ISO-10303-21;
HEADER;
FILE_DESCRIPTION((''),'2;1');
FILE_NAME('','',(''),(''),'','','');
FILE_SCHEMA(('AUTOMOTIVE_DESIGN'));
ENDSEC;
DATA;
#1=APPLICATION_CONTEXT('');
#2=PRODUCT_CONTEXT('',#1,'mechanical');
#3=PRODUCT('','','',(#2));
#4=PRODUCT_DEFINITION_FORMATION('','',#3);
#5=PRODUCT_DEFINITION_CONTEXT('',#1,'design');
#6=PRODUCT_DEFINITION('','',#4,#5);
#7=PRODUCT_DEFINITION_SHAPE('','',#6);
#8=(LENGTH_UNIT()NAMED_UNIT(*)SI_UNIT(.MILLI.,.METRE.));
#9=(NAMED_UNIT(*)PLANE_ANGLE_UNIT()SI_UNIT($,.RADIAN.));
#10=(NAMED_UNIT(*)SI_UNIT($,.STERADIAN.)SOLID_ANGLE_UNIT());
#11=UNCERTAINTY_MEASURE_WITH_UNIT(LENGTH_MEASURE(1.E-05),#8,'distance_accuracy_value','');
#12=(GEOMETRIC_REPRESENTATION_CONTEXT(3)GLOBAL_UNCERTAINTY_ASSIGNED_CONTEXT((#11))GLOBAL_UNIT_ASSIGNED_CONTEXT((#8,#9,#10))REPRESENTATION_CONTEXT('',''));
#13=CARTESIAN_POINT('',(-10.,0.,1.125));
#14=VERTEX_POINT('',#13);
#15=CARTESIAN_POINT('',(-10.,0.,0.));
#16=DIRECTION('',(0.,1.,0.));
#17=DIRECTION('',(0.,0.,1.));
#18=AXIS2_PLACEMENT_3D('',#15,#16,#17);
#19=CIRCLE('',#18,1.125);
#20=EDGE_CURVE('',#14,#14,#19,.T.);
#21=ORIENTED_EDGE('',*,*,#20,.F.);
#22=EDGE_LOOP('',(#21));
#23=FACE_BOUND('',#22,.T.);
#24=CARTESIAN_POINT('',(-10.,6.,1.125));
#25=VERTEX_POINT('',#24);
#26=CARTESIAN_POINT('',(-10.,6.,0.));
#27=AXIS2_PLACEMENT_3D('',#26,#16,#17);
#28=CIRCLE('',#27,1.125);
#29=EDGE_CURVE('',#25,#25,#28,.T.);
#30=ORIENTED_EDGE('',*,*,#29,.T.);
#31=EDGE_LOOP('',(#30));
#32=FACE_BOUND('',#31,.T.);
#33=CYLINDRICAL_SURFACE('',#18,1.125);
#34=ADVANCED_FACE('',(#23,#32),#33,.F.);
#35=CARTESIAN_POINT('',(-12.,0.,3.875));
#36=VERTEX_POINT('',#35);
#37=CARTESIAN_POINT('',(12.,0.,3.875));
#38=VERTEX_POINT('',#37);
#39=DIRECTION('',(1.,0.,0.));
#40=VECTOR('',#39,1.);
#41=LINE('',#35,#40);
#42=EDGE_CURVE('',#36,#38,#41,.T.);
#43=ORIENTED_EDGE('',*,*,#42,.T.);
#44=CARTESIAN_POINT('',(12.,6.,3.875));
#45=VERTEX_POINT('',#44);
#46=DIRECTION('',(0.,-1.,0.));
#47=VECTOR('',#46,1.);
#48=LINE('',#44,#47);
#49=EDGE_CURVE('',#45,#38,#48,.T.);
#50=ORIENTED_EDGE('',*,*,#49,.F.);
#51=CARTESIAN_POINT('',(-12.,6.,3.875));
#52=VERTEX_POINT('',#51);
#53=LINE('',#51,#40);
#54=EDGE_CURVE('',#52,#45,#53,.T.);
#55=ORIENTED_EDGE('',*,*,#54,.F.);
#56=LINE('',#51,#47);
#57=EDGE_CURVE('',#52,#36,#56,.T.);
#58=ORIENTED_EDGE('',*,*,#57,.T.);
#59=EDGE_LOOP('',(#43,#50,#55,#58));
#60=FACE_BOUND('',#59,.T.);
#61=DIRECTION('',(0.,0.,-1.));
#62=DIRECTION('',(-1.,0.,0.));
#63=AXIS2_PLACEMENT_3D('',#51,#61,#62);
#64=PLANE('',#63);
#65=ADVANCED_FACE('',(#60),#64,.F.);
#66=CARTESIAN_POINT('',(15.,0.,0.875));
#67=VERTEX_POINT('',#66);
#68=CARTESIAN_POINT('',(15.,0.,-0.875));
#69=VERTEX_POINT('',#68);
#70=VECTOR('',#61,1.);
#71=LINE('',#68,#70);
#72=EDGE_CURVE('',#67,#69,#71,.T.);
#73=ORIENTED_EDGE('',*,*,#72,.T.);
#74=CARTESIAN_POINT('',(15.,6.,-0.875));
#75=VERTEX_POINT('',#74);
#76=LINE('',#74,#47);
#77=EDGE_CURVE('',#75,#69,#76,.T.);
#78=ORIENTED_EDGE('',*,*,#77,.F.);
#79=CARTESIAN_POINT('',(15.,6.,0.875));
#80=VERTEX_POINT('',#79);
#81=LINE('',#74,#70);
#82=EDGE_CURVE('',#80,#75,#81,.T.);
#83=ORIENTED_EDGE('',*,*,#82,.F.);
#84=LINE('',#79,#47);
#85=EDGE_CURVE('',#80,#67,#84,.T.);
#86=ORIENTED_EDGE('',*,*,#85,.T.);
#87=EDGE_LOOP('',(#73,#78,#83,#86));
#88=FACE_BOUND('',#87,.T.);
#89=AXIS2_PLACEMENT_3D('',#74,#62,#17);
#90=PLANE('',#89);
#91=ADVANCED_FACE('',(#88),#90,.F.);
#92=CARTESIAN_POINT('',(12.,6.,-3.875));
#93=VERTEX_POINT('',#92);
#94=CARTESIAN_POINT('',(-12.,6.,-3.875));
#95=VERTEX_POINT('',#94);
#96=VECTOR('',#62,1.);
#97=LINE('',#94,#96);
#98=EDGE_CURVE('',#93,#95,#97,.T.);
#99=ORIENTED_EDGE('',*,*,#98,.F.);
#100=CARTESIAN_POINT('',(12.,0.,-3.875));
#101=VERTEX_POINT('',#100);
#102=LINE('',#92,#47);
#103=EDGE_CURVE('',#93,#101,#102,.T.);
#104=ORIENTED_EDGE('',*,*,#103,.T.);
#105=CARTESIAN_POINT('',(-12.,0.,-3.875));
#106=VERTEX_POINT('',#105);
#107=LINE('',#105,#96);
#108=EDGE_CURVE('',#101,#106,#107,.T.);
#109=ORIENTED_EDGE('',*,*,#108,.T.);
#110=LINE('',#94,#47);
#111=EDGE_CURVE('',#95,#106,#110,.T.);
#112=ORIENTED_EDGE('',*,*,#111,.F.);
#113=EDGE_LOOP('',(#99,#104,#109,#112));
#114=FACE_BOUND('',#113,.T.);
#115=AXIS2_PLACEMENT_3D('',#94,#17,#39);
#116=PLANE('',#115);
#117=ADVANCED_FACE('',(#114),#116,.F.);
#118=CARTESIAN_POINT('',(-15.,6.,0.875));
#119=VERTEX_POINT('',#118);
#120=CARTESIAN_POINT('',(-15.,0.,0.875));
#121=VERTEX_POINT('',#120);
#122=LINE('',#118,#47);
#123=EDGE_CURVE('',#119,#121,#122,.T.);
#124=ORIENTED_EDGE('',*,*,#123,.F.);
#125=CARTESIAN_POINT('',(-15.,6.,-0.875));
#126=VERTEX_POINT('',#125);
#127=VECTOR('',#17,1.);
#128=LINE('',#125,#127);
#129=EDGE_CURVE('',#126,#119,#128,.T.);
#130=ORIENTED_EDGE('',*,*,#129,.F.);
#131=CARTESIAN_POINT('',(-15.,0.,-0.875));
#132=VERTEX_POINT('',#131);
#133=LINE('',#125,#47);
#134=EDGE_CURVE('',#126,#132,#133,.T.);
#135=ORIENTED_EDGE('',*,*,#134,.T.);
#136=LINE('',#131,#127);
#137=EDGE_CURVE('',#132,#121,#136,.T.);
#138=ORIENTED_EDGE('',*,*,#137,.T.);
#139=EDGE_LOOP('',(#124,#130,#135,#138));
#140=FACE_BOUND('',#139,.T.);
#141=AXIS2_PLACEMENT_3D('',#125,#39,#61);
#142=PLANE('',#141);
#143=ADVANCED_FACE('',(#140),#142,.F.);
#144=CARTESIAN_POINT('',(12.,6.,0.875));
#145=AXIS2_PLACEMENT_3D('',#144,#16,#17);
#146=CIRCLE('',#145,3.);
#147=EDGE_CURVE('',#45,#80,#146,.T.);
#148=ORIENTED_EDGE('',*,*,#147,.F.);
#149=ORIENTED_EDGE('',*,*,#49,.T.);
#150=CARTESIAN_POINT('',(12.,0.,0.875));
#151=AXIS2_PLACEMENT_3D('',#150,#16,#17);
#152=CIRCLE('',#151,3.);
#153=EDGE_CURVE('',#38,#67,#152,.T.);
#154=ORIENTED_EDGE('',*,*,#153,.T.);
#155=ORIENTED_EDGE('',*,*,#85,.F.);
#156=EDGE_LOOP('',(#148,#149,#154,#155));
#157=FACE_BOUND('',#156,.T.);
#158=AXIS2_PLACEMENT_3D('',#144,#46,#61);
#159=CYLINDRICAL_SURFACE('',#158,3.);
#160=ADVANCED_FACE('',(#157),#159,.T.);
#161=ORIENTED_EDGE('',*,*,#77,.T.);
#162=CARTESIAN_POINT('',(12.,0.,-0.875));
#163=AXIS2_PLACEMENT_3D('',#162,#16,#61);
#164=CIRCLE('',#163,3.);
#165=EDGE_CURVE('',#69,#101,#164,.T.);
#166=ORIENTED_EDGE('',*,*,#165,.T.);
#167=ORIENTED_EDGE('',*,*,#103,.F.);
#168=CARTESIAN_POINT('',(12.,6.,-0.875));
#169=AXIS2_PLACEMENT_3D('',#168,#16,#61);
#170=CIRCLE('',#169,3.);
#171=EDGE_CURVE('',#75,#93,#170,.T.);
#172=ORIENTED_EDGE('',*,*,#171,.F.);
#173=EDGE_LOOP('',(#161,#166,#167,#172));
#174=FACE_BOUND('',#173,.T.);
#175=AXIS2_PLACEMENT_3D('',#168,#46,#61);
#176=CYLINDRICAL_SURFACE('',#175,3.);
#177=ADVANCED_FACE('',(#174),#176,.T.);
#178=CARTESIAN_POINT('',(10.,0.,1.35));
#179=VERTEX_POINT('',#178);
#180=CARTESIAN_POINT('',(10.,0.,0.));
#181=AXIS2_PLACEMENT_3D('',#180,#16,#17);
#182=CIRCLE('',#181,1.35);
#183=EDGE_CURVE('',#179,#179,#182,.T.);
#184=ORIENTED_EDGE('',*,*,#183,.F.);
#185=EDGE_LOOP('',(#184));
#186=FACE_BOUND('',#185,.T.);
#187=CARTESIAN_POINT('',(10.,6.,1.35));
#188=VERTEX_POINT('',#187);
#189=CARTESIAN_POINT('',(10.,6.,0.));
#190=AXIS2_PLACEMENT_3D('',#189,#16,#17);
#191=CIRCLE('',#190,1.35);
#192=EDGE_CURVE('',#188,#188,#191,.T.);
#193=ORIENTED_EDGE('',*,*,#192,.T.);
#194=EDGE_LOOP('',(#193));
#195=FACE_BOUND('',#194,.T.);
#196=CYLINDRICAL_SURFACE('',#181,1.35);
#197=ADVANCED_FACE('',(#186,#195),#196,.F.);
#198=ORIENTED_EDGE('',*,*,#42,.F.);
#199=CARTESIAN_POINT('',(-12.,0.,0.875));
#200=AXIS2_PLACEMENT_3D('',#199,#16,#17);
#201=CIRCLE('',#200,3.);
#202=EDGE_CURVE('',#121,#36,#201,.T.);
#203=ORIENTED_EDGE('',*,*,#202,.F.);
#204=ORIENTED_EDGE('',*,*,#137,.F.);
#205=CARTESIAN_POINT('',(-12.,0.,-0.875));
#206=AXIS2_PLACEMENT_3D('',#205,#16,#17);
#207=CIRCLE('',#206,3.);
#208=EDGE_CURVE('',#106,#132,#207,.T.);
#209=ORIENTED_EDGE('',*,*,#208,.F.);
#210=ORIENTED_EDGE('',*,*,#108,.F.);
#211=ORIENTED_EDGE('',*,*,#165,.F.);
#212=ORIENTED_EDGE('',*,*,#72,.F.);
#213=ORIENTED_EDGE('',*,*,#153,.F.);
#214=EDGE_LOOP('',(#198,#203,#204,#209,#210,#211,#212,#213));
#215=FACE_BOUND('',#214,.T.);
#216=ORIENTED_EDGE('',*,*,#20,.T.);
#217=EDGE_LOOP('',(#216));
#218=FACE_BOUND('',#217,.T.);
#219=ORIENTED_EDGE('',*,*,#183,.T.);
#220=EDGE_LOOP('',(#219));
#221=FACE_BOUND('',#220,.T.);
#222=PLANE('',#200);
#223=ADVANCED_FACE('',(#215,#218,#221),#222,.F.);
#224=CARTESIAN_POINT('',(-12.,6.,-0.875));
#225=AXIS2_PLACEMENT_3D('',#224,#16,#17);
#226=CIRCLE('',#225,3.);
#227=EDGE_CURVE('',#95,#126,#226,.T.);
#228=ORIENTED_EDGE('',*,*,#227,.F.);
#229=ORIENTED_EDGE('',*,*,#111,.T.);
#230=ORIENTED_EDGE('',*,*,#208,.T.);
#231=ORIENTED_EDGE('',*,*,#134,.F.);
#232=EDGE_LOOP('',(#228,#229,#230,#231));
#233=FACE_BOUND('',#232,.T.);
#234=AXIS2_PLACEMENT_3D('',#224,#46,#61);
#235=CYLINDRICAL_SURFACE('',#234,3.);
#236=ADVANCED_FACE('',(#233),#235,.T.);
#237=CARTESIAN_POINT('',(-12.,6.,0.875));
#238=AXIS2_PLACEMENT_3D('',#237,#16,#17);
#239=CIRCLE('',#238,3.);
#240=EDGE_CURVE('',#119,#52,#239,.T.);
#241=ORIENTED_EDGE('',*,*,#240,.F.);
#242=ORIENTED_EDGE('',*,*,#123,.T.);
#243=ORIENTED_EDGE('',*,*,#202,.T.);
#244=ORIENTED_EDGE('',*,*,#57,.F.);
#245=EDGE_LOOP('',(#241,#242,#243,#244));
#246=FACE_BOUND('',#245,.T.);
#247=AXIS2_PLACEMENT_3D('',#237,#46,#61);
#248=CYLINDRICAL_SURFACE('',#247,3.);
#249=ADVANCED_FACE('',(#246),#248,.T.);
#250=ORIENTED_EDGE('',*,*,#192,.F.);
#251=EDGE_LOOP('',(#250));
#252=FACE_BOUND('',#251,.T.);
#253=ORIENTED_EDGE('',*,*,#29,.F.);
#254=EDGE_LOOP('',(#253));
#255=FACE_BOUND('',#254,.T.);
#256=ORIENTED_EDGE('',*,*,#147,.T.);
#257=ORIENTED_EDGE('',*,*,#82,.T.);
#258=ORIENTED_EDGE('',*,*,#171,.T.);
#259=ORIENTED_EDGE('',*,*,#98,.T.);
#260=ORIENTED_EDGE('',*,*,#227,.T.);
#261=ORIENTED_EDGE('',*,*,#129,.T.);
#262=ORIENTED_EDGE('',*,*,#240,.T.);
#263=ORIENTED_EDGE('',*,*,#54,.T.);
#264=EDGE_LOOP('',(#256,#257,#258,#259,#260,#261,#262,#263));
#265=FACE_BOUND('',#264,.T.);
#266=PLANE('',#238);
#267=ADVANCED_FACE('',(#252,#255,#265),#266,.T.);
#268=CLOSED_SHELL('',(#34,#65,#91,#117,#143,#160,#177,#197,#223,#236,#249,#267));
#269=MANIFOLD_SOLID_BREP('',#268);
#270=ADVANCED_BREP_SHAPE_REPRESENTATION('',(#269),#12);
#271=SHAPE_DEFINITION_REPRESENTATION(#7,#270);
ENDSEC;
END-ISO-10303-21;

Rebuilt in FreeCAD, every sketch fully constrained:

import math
import FreeCAD as App
import Part
import Sketcher
Q = App.Units.Quantity

doc = App.newDocument("Part")
body = doc.addObject("PartDesign::Body", "Body")

# Sketch on XZ plane
sketch1 = body.newObject("Sketcher::SketchObject", "Sketch")
sketch1.AttachmentSupport = (doc.getObject("XZ_Plane"), [""])
sketch1.MapMode = "FlatFace"
sketch1.addGeometry([
    Part.LineSegment(App.Vector(12, -3.9, 0), App.Vector(-12, -3.9, 0)),  # 0
    Part.ArcOfCircle(Part.Circle(App.Vector(-12, -0.9, 0), App.Vector(0, 0, 1), 3), math.radians(180), math.radians(270)),  # 1
    Part.LineSegment(App.Vector(-15, -0.9, 0), App.Vector(-15, 0.9, 0)),  # 2
    Part.ArcOfCircle(Part.Circle(App.Vector(-12, 0.9, 0), App.Vector(0, 0, 1), 3), math.radians(90), math.radians(180)),  # 3
    Part.LineSegment(App.Vector(-12, 3.9, 0), App.Vector(12, 3.9, 0)),  # 4
    Part.ArcOfCircle(Part.Circle(App.Vector(12, 0.9, 0), App.Vector(0, 0, 1), 3), math.radians(0), math.radians(90)),  # 5
    Part.LineSegment(App.Vector(15, 0.9, 0), App.Vector(15, -0.9, 0)),  # 6
    Part.ArcOfCircle(Part.Circle(App.Vector(12, -0.9, 0), App.Vector(0, 0, 1), 3), math.radians(-90), math.radians(0)),  # 7
], False)
sketch1.addConstraint([
    Sketcher.Constraint("Tangent", 0, 2, 1, 2),
    Sketcher.Constraint("Tangent", 1, 1, 2, 1),
    Sketcher.Constraint("Tangent", 2, 2, 3, 2),
    Sketcher.Constraint("Tangent", 3, 1, 4, 1),
    Sketcher.Constraint("Tangent", 4, 2, 5, 2),
    Sketcher.Constraint("Tangent", 5, 1, 6, 1),
    Sketcher.Constraint("Tangent", 6, 2, 7, 2),
    Sketcher.Constraint("Tangent", 7, 1, 0, 1),
    Sketcher.Constraint("Horizontal", 0),
    Sketcher.Constraint("Vertical", 2),
    Sketcher.Constraint("Horizontal", 4),
    Sketcher.Constraint("Vertical", 6),
    Sketcher.Constraint("Equal", 1, 3),
    Sketcher.Constraint("Equal", 3, 5),
    Sketcher.Constraint("Equal", 5, 7),
    Sketcher.Constraint("Symmetric", 1, 3, 5, 3, -1, 1),
    Sketcher.Constraint("Radius", 1, Q("3 mm")),
    Sketcher.Constraint("DistanceX", 0, 2, 0, 1, Q("24 mm")),
    Sketcher.Constraint("DistanceY", 2, 1, 2, 2, Q("1.75 mm")),
])
pad1 = body.newObject("PartDesign::Pad", "Pad")
pad1.Profile = sketch1
pad1.Length = 6
pad1.Reversed = True

# Sketch on XZ plane
sketch2 = body.newObject("Sketcher::SketchObject", "Sketch001")
sketch2.AttachmentSupport = (doc.getObject("XZ_Plane"), [""])
sketch2.MapMode = "FlatFace"
sketch2.AttachmentOffset = App.Placement(App.Vector(0, 0, -6), App.Rotation())
sketch2.addGeometry([
    Part.Circle(App.Vector(-10, 0, 0), App.Vector(0, 0, 1), 1.1),
    Part.Circle(App.Vector(10, 0, 0), App.Vector(0, 0, 1), 1.4),
], False)
sketch2.addConstraint([
    Sketcher.Constraint("Symmetric", 0, 3, 1, 3, -1, 1),
    Sketcher.Constraint("PointOnObject", 0, 3, -1),
    Sketcher.Constraint("Diameter", 1, Q("2.7 mm")),
    Sketcher.Constraint("Diameter", 0, Q("2.25 mm")),
    Sketcher.Constraint("DistanceX", 0, 3, -1, 1, Q("10 mm")),
])
pocket1 = body.newObject("PartDesign::Pocket", "Pocket")
pocket1.Profile = sketch2
pocket1.Type = "ThroughAll"
pocket1.Reversed = True

doc.recompute()
